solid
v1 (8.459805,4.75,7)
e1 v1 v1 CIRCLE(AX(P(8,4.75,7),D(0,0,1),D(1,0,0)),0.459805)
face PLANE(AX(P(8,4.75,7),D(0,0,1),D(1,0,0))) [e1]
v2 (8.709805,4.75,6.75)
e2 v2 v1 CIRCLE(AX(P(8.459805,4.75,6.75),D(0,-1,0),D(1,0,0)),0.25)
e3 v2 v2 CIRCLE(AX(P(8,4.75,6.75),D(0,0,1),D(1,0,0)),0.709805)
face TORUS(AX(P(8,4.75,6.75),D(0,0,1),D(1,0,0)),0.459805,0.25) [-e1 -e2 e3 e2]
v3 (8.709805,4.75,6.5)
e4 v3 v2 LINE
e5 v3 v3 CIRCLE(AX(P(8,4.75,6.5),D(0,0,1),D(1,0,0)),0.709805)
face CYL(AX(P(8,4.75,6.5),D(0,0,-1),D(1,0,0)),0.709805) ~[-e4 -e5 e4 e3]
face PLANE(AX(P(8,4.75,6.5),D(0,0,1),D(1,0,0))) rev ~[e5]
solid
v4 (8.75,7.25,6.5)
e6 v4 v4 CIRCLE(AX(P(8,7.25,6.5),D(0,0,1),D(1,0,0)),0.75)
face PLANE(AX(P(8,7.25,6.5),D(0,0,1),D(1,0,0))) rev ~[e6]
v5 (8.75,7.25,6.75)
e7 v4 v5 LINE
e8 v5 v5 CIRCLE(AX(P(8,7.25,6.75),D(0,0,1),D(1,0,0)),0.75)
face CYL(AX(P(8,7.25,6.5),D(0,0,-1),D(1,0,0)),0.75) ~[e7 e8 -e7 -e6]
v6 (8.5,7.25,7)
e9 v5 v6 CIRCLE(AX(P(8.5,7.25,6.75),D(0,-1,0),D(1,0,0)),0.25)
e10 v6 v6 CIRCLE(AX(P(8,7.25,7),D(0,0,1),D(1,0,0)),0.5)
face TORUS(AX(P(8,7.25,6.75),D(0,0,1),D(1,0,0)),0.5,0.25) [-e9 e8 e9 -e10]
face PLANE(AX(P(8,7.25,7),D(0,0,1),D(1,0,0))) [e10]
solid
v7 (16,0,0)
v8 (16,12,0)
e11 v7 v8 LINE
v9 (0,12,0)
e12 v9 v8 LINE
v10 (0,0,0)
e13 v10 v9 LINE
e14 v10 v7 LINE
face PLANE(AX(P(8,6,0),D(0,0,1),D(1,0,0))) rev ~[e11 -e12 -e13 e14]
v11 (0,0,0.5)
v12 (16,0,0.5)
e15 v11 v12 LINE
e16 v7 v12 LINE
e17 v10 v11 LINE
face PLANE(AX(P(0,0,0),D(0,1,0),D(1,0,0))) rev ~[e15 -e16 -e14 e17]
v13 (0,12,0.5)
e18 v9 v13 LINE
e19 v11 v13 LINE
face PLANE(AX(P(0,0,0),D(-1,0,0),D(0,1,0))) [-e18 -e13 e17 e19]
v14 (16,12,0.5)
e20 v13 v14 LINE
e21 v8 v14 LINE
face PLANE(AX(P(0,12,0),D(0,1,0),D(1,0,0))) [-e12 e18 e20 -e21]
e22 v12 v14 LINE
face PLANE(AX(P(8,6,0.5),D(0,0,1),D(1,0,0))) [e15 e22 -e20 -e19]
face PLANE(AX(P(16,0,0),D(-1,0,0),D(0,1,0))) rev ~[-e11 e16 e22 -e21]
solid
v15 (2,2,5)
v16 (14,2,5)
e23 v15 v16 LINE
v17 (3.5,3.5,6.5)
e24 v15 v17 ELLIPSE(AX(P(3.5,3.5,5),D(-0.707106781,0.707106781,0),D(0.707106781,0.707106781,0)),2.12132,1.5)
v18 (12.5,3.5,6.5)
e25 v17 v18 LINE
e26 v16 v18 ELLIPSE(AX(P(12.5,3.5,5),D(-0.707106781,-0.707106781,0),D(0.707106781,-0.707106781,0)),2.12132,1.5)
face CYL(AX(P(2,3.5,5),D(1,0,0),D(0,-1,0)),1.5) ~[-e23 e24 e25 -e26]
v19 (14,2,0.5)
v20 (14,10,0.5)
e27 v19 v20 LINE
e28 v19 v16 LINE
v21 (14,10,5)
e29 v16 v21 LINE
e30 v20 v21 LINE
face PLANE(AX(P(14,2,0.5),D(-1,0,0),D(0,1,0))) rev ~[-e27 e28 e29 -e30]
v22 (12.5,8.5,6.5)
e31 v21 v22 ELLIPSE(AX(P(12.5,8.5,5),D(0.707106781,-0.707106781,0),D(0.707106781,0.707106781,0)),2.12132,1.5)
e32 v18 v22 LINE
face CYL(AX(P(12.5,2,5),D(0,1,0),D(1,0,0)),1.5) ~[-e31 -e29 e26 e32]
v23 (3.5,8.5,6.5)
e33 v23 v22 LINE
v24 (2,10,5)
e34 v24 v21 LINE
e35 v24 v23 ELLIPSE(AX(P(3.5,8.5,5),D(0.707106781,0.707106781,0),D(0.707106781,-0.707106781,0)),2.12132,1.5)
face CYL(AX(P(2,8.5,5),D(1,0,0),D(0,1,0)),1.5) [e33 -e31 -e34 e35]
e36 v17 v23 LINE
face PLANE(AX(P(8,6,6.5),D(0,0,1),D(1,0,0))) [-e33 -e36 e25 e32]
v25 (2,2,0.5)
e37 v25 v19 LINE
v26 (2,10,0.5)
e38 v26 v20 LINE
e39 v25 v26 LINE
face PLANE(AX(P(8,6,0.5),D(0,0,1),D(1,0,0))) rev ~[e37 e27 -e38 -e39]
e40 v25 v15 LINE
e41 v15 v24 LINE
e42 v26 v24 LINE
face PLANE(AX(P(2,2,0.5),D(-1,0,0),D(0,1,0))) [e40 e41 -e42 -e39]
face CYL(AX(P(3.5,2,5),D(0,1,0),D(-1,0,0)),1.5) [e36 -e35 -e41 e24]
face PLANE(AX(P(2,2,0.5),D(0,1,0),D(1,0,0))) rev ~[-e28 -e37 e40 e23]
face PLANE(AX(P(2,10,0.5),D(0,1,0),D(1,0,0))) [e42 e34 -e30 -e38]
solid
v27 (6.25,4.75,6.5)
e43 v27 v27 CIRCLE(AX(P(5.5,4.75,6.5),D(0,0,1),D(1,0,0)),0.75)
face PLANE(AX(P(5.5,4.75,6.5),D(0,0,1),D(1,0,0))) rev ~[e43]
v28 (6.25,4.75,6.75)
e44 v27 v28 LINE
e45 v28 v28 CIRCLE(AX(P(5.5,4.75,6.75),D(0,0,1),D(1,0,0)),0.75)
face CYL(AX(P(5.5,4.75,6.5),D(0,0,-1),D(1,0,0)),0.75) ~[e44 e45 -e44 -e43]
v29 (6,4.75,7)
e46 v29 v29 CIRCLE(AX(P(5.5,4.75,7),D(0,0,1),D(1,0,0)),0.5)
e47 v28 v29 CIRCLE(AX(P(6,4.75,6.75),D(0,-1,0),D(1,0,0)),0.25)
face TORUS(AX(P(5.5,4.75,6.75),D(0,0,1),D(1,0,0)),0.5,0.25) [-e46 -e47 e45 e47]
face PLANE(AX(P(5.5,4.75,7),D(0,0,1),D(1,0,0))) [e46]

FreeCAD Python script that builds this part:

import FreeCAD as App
import Part
import Sketcher
from FreeCAD import Vector


def edges_at(feature, points):
    """Names of the edges that pass closest to the given points."""
    edges = feature.Shape.Edges
    near = lambda p: min(range(len(edges)), key=lambda i: edges[i].distToShape(Part.Vertex(*p))[0])
    return sorted({f"Edge{near(p) + 1}" for p in points})


def add_polygon(sketch, points):
    """Adds a closed chain of lines whose ends are joined by coincident constraints."""
    first, n = sketch.GeometryCount, len(points)
    for a, b in zip(points, points[1:] + points[:1]):
        sketch.addGeometry(Part.LineSegment(App.Vector(*a, 0), App.Vector(*b, 0)), False)
    for i in range(n):
        sketch.addConstraint(Sketcher.Constraint("Coincident", first + i, 2, first + (i + 1) % n, 1))

doc = App.newDocument("Part")
body = doc.addObject("PartDesign::Body", "Body")

# Sketch on XY plane
sketch1 = body.newObject("Sketcher::SketchObject", "Sketch")
sketch1.AttachmentSupport = (doc.getObject("XY_Plane"), [""])
sketch1.MapMode = "FlatFace"
add_polygon(sketch1, [(0, 12), (0, 0), (16, 0), (16, 12)])  # lines 0-3
sketch1.addConstraint([
    Sketcher.Constraint("Vertical", 0),
    Sketcher.Constraint("Horizontal", 1),
    Sketcher.Constraint("Vertical", 2),
    Sketcher.Constraint("Horizontal", 3),
    Sketcher.Constraint("Coincident", 0, 2, -1, 1),
    Sketcher.Constraint("DistanceX", 1, 1, 1, 2, 16.0),
    Sketcher.Constraint("DistanceY", 0, 2, 0, 1, 12.0),
])
pad1 = body.newObject("PartDesign::Pad", "Pad")
pad1.Profile = sketch1
pad1.Length = 0.5
body2 = doc.addObject("PartDesign::Body", "Body001")

# Sketch on XY plane
sketch2 = body2.newObject("Sketcher::SketchObject", "Sketch001")
sketch2.AttachmentSupport = (doc.getObject("XY_Plane001"), [""])
sketch2.MapMode = "FlatFace"
sketch2.AttachmentOffset = App.Placement(Vector(0, 0, 0.5), App.Rotation())
add_polygon(sketch2, [(2, 10), (2, 2), (14, 2), (14, 10)])  # lines 0-3
sketch2.addConstraint([
    Sketcher.Constraint("Vertical", 0),
    Sketcher.Constraint("Horizontal", 1),
    Sketcher.Constraint("Vertical", 2),
    Sketcher.Constraint("Horizontal", 3),
    Sketcher.Constraint("DistanceX", 1, 1, 1, 2, 12.0),
    Sketcher.Constraint("DistanceY", 0, 2, 0, 1, 8.0),
    Sketcher.Constraint("DistanceX", -1, 1, 0, 2, 2.0),
    Sketcher.Constraint("DistanceY", -1, 1, 0, 2, 2.0),
])
pad2 = body2.newObject("PartDesign::Pad", "Pad001")
pad2.Profile = sketch2
pad2.Length = 6
doc.recompute()

fillet = body2.newObject("PartDesign::Fillet", "Fillet")
fillet.Base = (pad2, edges_at(pad2, [
    (8, 2, 6.5),
    (14, 6, 6.5),
    (8, 10, 6.5),
    (2, 6, 6.5),
]))
fillet.Radius = 1.5
body3 = doc.addObject("PartDesign::Body", "Body002")

# Sketch on XY plane
sketch3 = body3.newObject("Sketcher::SketchObject", "Sketch002")
sketch3.AttachmentSupport = (doc.getObject("XY_Plane002"), [""])
sketch3.MapMode = "FlatFace"
sketch3.AttachmentOffset = App.Placement(Vector(0, 0, 6.5), App.Rotation())
sketch3.addGeometry(Part.Circle(Vector(5.5, 4.8, 0), Vector(0, 0, 1), 0.8), False)
sketch3.addConstraint([
    Sketcher.Constraint("Diameter", 0, 1.5),
    Sketcher.Constraint("DistanceX", -1, 1, 0, 3, 5.5),
    Sketcher.Constraint("DistanceY", -1, 1, 0, 3, 4.75),
])
pad3 = body3.newObject("PartDesign::Pad", "Pad002")
pad3.Profile = sketch3
pad3.Length = 0.5
doc.recompute()

fillet2 = body3.newObject("PartDesign::Fillet", "Fillet001")
fillet2.Base = (pad3, edges_at(pad3, [(4.75, 4.75, 7)]))
fillet2.Radius = 0.25
body4 = doc.addObject("PartDesign::Body", "Body003")

# Sketch on XY plane
sketch4 = body4.newObject("Sketcher::SketchObject", "Sketch003")
sketch4.AttachmentSupport = (doc.getObject("XY_Plane003"), [""])
sketch4.MapMode = "FlatFace"
sketch4.AttachmentOffset = App.Placement(Vector(0, 0, 6.5), App.Rotation())
sketch4.addGeometry(Part.Circle(Vector(8, 4.8, 0), Vector(0, 0, 1), 0.7), False)
sketch4.addConstraint([
    Sketcher.Constraint("DistanceX", -1, 1, 0, 3, 8.0),
    Sketcher.Constraint("Diameter", 0, 1.41961),
    Sketcher.Constraint("DistanceY", -1, 1, 0, 3, 4.75),
])
pad4 = body4.newObject("PartDesign::Pad", "Pad003")
pad4.Profile = sketch4
pad4.Length = 0.5
doc.recompute()

fillet3 = body4.newObject("PartDesign::Fillet", "Fillet002")
fillet3.Base = (pad4, edges_at(pad4, [(7.29, 4.75, 7)]))
fillet3.Radius = 0.25
body5 = doc.addObject("PartDesign::Body", "Body004")

# Sketch on XY plane
sketch5 = body5.newObject("Sketcher::SketchObject", "Sketch004")
sketch5.AttachmentSupport = (doc.getObject("XY_Plane004"), [""])
sketch5.MapMode = "FlatFace"
sketch5.AttachmentOffset = App.Placement(Vector(0, 0, 6.5), App.Rotation())
sketch5.addGeometry(Part.Circle(Vector(8, 7.2, 0), Vector(0, 0, 1), 0.8), False)
sketch5.addConstraint([
    Sketcher.Constraint("Diameter", 0, 1.5),
    Sketcher.Constraint("DistanceX", -1, 1, 0, 3, 8.0),
    Sketcher.Constraint("DistanceY", -1, 1, 0, 3, 7.25),
])
pad5 = body5.newObject("PartDesign::Pad", "Pad004")
pad5.Profile = sketch5
pad5.Length = 0.5
doc.recompute()

fillet4 = body5.newObject("PartDesign::Fillet", "Fillet003")
fillet4.Base = (pad5, edges_at(pad5, [(7.25, 7.25, 7)]))
fillet4.Radius = 0.25

doc.recompute()
